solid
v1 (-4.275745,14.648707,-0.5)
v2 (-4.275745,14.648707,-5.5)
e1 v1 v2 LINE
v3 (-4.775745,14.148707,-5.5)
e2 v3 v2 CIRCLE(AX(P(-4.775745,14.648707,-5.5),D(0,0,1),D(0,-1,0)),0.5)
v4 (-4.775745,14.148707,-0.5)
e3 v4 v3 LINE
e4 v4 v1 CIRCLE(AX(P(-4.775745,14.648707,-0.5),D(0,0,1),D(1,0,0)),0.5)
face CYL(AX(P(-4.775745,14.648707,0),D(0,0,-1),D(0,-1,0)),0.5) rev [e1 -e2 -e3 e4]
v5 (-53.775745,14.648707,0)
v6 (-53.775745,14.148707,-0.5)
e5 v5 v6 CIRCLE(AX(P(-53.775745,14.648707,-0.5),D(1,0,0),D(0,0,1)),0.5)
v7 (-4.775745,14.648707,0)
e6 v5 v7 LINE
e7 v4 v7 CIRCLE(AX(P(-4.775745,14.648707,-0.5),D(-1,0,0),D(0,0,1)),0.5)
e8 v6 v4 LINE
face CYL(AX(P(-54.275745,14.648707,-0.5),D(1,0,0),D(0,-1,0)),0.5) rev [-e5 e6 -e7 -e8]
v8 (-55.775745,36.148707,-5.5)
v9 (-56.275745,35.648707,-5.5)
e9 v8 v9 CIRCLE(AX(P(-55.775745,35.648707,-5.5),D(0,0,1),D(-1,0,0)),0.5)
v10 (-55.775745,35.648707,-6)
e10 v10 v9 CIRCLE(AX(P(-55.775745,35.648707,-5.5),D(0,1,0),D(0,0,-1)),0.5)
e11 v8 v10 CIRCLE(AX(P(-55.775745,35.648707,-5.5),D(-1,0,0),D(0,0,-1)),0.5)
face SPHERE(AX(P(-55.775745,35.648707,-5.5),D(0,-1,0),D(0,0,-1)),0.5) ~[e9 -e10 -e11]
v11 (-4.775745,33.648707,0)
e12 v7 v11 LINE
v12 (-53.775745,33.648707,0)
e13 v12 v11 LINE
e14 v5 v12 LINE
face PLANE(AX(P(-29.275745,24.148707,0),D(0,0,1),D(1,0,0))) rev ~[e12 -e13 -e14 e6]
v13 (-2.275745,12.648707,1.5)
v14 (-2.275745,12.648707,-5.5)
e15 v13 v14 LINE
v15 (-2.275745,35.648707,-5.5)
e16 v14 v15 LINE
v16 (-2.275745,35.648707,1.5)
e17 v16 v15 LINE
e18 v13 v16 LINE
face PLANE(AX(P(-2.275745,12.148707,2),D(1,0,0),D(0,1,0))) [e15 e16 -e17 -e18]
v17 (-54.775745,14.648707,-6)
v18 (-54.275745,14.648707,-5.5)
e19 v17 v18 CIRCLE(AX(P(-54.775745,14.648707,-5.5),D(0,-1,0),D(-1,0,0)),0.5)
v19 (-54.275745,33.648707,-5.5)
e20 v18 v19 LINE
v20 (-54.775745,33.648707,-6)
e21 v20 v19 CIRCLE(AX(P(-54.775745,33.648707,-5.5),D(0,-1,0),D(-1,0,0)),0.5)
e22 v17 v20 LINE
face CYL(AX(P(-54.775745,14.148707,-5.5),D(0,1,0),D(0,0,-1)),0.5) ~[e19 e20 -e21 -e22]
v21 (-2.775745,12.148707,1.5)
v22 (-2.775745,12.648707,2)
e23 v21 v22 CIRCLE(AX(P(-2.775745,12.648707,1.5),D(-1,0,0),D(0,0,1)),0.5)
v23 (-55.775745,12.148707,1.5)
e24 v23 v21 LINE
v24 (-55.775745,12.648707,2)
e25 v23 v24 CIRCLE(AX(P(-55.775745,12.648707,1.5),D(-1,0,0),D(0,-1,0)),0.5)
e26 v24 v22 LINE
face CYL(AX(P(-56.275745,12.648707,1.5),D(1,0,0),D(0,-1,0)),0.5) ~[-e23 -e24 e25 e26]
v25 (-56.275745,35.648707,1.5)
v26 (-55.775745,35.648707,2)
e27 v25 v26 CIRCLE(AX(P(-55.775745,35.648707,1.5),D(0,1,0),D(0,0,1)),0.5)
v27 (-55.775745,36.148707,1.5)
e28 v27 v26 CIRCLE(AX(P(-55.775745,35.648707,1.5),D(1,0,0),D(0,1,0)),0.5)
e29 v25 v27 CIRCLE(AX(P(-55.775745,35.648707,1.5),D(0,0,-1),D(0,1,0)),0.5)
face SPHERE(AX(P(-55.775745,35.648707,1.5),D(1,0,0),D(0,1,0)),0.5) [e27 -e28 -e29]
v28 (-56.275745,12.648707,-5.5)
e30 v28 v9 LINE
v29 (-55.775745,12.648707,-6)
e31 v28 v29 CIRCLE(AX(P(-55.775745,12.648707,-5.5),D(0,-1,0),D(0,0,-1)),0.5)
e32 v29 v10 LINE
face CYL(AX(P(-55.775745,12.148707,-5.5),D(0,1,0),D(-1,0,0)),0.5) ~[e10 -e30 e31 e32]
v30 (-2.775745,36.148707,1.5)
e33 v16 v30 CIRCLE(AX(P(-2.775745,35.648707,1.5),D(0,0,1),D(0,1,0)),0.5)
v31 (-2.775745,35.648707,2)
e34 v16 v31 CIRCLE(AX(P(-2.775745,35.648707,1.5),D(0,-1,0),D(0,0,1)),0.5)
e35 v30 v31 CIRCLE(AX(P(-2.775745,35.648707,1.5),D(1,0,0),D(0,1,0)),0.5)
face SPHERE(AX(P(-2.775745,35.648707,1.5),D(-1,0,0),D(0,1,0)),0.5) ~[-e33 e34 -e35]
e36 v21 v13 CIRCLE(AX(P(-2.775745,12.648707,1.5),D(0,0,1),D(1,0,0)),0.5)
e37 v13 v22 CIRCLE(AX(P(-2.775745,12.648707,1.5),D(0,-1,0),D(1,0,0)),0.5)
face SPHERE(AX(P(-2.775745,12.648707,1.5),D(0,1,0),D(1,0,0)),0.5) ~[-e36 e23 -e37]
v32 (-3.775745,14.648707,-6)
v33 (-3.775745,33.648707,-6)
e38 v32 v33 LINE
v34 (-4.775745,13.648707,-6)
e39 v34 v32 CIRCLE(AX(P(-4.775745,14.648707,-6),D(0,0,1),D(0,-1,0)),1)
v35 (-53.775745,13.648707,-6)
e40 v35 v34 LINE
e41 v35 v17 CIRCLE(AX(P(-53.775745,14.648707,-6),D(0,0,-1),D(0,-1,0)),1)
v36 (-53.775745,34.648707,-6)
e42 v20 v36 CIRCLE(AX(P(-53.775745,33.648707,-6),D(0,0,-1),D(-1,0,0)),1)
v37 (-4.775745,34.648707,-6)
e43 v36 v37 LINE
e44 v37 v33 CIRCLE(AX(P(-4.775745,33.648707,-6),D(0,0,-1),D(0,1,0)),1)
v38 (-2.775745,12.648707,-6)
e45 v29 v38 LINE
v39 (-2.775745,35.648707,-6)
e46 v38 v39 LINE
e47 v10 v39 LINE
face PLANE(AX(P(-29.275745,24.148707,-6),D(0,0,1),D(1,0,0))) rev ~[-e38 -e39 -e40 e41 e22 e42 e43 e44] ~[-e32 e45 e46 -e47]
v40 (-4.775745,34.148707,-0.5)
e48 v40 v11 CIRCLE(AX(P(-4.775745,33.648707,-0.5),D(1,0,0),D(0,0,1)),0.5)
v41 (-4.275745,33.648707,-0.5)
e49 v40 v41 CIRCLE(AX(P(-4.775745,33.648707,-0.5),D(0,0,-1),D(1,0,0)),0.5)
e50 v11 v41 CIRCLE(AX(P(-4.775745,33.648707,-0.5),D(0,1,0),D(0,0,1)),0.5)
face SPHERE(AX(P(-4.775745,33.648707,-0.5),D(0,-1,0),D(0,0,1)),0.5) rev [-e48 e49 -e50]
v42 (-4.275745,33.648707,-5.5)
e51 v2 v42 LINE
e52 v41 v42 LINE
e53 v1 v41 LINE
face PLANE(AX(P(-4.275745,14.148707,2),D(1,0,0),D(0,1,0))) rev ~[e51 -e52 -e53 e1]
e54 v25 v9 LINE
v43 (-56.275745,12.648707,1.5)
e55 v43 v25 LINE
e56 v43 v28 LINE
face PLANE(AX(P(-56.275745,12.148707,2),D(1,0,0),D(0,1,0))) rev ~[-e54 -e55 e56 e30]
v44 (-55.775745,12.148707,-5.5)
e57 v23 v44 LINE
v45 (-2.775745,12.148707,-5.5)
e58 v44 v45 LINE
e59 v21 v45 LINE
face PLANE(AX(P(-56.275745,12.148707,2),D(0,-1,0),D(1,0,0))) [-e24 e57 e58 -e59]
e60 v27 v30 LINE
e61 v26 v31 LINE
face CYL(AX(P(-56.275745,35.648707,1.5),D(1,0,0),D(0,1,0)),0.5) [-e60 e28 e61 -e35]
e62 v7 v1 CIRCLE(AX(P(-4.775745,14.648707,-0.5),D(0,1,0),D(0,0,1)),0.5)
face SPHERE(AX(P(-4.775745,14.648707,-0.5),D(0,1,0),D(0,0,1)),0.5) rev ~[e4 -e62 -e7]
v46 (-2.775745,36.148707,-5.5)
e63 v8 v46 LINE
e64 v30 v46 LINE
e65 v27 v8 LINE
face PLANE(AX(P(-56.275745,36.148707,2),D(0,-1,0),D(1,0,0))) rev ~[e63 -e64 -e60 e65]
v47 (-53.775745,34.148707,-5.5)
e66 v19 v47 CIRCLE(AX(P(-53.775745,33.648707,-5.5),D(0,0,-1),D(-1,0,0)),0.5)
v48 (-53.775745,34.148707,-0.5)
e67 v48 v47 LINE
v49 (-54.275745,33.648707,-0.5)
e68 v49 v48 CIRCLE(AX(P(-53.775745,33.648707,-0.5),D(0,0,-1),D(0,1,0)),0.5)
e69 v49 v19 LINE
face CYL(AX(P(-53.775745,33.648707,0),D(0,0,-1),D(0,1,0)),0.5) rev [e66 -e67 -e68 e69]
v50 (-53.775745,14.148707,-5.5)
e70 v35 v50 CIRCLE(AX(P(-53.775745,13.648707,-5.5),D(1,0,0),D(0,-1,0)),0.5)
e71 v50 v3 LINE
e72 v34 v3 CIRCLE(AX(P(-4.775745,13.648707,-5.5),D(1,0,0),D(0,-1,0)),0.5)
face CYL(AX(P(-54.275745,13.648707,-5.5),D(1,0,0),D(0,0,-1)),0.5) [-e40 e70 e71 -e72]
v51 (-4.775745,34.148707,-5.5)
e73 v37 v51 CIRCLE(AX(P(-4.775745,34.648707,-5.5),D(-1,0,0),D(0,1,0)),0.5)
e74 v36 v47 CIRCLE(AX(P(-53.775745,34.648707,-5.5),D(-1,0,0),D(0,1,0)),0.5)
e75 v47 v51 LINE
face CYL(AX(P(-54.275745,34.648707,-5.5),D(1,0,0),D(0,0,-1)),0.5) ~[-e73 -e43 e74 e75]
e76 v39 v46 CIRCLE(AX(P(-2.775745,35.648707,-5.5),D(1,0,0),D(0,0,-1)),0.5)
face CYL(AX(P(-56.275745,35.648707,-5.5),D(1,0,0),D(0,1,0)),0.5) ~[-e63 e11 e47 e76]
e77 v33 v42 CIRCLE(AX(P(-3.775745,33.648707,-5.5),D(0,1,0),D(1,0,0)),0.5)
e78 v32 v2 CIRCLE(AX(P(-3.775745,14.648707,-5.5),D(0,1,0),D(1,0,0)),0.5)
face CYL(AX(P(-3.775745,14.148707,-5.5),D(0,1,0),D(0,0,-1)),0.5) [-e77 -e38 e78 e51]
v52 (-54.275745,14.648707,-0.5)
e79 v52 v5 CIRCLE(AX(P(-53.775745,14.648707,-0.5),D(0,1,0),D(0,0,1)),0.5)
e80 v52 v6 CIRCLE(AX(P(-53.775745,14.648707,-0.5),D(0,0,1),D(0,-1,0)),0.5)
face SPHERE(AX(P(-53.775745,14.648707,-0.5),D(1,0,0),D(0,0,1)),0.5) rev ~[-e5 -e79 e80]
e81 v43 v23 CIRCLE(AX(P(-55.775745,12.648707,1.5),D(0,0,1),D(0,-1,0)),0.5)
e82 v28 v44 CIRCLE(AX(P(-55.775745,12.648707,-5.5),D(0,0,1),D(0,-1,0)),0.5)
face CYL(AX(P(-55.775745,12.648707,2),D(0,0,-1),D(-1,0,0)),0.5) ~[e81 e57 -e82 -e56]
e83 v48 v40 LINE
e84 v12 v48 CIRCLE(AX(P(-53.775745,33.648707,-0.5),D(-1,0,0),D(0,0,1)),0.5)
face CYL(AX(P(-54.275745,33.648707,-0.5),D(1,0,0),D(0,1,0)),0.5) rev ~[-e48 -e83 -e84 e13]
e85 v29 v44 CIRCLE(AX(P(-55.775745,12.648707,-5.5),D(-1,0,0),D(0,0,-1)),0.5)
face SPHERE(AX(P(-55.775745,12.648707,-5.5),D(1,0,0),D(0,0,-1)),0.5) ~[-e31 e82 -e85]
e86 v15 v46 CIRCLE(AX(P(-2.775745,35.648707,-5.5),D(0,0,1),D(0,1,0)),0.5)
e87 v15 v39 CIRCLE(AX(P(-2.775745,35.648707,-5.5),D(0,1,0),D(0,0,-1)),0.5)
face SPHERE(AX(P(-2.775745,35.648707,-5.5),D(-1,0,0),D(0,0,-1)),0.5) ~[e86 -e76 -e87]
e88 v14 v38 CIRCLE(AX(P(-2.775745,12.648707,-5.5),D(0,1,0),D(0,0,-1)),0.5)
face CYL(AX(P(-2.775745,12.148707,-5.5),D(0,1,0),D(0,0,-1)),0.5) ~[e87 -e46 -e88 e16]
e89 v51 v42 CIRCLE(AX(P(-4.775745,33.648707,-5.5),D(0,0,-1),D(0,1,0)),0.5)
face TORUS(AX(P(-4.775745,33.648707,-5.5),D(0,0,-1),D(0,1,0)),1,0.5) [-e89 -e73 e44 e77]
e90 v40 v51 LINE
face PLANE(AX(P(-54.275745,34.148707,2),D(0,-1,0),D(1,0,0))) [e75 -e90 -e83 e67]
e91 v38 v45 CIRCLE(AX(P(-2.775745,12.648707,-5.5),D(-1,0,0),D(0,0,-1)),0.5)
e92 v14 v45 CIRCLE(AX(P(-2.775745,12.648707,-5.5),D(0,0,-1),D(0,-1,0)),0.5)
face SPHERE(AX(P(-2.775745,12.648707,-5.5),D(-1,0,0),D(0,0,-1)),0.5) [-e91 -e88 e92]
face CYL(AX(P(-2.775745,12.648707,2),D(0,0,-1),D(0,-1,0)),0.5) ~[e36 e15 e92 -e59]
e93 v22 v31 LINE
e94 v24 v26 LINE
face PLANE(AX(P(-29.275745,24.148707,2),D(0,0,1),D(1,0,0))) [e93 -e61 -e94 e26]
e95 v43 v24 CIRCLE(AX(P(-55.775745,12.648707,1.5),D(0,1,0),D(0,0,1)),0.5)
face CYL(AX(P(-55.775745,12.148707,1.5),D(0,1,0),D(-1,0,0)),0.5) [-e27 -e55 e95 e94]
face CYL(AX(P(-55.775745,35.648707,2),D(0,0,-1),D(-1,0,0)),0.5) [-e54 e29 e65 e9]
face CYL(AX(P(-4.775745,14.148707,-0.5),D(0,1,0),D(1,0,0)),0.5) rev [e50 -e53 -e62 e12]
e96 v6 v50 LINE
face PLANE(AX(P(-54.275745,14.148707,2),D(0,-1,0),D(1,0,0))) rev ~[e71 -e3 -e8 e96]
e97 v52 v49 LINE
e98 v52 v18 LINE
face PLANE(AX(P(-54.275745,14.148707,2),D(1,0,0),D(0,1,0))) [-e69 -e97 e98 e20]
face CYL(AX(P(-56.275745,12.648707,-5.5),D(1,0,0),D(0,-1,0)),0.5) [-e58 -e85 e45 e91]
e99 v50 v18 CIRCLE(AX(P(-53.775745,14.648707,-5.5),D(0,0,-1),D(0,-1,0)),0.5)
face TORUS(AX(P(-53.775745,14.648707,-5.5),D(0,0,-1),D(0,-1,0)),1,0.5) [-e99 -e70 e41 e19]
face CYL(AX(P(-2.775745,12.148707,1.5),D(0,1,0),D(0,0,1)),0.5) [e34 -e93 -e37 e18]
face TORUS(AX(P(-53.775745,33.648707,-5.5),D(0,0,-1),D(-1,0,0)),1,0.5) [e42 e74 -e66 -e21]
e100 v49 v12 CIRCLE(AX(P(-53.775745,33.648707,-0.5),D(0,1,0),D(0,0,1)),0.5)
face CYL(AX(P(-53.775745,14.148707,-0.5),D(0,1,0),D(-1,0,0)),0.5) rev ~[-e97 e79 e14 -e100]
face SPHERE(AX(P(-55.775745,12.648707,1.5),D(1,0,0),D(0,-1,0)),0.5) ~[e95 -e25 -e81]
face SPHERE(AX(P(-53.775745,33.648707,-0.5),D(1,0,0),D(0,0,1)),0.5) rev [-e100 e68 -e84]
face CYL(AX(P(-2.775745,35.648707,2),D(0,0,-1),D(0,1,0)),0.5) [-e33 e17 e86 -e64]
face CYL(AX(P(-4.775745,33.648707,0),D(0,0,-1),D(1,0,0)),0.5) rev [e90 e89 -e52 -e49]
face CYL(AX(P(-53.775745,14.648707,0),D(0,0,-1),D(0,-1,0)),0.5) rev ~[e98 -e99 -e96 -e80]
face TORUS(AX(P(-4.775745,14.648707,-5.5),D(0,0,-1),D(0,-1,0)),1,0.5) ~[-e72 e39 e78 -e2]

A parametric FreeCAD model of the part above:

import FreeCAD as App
import Part
import Sketcher
from FreeCAD import Vector


def add_polygon(sketch, points):
    """Adds a closed chain of lines whose ends are joined by coincident constraints."""
    first, n = sketch.GeometryCount, len(points)
    for a, b in zip(points, points[1:] + points[:1]):
        sketch.addGeometry(Part.LineSegment(App.Vector(*a, 0), App.Vector(*b, 0)), False)
    for i in range(n):
        sketch.addConstraint(Sketcher.Constraint("Coincident", first + i, 2, first + (i + 1) % n, 1))

doc = App.newDocument("Part")
body = doc.addObject("PartDesign::Body", "Body")

sketch1 = body.newObject("Sketcher::SketchObject", "Sketch")
sketch1.AttachmentSupport = (doc.getObject("XY_Plane"), [""])
sketch1.MapMode = "FlatFace"
add_polygon(sketch1, [(-54, 34), (-54, 14), (-4, 14), (-4, 34)])
sketch1.addConstraint([
    Sketcher.Constraint("Vertical", 0),
    Sketcher.Constraint("Horizontal", 1),
    Sketcher.Constraint("Vertical", 2),
    Sketcher.Constraint("Horizontal", 3),
    Sketcher.Constraint("DistanceX", 1, 1, 1, 2, 50.0),
    Sketcher.Constraint("DistanceY", 0, 2, 0, 1, 20.0),
    Sketcher.Constraint("DistanceX", 0, 2, -1, 1, 54.275745),
    Sketcher.Constraint("DistanceY", -1, 1, 0, 2, 14.148707),
])
pad1 = body.newObject("PartDesign::Pad", "Pad")
pad1.Profile = sketch1
pad1.Length = 2

sketch2 = body.newObject("Sketcher::SketchObject", "Sketch001")
sketch2.AttachmentSupport = (doc.getObject("XY_Plane"), [""])
sketch2.MapMode = "FlatFace"
sketch2.AttachmentOffset = App.Placement(Vector(0, 0, 2), App.Rotation())
add_polygon(sketch2, [(-56, 36), (-56, 12), (-2, 12), (-2, 36)])
add_polygon(sketch2, [(-4, 14), (-54, 14), (-54, 34), (-4, 34)])
sketch2.addConstraint([
    Sketcher.Constraint("Vertical", 0),
    Sketcher.Constraint("Horizontal", 1),
    Sketcher.Constraint("Vertical", 2),
    Sketcher.Constraint("Horizontal", 3),
    Sketcher.Constraint("Horizontal", 4),
    Sketcher.Constraint("Vertical", 5),
    Sketcher.Constraint("Horizontal", 6),
    Sketcher.Constraint("Vertical", 7),
    Sketcher.Constraint("DistanceX", 1, 1, 1, 2, 54.0),
    Sketcher.Constraint("DistanceX", 4, 2, 4, 1, 50.0),
    Sketcher.Constraint("DistanceY", 0, 2, 0, 1, 24.0),
    Sketcher.Constraint("DistanceY", 5, 1, 5, 2, 20.0),
    Sketcher.Constraint("DistanceX", 0, 2, 4, 2, 2.0),
    Sketcher.Constraint("DistanceY", 0, 2, 4, 2, 2.0),
    Sketcher.Constraint("DistanceX", 0, 2, -1, 1, 56.275745),
    Sketcher.Constraint("DistanceY", -1, 1, 0, 2, 12.148707),
])
pad2 = body.newObject("PartDesign::Pad", "Pad001")
pad2.Profile = sketch2
pad2.Length = 8
pad2.Reversed = True
doc.recompute()

fillet = body.newObject("PartDesign::Fillet", "Fillet")
fillet.Base = (pad2, ["Edge1"])
fillet.UseAllEdges = True
fillet.Radius = 0.5

doc.recompute()
